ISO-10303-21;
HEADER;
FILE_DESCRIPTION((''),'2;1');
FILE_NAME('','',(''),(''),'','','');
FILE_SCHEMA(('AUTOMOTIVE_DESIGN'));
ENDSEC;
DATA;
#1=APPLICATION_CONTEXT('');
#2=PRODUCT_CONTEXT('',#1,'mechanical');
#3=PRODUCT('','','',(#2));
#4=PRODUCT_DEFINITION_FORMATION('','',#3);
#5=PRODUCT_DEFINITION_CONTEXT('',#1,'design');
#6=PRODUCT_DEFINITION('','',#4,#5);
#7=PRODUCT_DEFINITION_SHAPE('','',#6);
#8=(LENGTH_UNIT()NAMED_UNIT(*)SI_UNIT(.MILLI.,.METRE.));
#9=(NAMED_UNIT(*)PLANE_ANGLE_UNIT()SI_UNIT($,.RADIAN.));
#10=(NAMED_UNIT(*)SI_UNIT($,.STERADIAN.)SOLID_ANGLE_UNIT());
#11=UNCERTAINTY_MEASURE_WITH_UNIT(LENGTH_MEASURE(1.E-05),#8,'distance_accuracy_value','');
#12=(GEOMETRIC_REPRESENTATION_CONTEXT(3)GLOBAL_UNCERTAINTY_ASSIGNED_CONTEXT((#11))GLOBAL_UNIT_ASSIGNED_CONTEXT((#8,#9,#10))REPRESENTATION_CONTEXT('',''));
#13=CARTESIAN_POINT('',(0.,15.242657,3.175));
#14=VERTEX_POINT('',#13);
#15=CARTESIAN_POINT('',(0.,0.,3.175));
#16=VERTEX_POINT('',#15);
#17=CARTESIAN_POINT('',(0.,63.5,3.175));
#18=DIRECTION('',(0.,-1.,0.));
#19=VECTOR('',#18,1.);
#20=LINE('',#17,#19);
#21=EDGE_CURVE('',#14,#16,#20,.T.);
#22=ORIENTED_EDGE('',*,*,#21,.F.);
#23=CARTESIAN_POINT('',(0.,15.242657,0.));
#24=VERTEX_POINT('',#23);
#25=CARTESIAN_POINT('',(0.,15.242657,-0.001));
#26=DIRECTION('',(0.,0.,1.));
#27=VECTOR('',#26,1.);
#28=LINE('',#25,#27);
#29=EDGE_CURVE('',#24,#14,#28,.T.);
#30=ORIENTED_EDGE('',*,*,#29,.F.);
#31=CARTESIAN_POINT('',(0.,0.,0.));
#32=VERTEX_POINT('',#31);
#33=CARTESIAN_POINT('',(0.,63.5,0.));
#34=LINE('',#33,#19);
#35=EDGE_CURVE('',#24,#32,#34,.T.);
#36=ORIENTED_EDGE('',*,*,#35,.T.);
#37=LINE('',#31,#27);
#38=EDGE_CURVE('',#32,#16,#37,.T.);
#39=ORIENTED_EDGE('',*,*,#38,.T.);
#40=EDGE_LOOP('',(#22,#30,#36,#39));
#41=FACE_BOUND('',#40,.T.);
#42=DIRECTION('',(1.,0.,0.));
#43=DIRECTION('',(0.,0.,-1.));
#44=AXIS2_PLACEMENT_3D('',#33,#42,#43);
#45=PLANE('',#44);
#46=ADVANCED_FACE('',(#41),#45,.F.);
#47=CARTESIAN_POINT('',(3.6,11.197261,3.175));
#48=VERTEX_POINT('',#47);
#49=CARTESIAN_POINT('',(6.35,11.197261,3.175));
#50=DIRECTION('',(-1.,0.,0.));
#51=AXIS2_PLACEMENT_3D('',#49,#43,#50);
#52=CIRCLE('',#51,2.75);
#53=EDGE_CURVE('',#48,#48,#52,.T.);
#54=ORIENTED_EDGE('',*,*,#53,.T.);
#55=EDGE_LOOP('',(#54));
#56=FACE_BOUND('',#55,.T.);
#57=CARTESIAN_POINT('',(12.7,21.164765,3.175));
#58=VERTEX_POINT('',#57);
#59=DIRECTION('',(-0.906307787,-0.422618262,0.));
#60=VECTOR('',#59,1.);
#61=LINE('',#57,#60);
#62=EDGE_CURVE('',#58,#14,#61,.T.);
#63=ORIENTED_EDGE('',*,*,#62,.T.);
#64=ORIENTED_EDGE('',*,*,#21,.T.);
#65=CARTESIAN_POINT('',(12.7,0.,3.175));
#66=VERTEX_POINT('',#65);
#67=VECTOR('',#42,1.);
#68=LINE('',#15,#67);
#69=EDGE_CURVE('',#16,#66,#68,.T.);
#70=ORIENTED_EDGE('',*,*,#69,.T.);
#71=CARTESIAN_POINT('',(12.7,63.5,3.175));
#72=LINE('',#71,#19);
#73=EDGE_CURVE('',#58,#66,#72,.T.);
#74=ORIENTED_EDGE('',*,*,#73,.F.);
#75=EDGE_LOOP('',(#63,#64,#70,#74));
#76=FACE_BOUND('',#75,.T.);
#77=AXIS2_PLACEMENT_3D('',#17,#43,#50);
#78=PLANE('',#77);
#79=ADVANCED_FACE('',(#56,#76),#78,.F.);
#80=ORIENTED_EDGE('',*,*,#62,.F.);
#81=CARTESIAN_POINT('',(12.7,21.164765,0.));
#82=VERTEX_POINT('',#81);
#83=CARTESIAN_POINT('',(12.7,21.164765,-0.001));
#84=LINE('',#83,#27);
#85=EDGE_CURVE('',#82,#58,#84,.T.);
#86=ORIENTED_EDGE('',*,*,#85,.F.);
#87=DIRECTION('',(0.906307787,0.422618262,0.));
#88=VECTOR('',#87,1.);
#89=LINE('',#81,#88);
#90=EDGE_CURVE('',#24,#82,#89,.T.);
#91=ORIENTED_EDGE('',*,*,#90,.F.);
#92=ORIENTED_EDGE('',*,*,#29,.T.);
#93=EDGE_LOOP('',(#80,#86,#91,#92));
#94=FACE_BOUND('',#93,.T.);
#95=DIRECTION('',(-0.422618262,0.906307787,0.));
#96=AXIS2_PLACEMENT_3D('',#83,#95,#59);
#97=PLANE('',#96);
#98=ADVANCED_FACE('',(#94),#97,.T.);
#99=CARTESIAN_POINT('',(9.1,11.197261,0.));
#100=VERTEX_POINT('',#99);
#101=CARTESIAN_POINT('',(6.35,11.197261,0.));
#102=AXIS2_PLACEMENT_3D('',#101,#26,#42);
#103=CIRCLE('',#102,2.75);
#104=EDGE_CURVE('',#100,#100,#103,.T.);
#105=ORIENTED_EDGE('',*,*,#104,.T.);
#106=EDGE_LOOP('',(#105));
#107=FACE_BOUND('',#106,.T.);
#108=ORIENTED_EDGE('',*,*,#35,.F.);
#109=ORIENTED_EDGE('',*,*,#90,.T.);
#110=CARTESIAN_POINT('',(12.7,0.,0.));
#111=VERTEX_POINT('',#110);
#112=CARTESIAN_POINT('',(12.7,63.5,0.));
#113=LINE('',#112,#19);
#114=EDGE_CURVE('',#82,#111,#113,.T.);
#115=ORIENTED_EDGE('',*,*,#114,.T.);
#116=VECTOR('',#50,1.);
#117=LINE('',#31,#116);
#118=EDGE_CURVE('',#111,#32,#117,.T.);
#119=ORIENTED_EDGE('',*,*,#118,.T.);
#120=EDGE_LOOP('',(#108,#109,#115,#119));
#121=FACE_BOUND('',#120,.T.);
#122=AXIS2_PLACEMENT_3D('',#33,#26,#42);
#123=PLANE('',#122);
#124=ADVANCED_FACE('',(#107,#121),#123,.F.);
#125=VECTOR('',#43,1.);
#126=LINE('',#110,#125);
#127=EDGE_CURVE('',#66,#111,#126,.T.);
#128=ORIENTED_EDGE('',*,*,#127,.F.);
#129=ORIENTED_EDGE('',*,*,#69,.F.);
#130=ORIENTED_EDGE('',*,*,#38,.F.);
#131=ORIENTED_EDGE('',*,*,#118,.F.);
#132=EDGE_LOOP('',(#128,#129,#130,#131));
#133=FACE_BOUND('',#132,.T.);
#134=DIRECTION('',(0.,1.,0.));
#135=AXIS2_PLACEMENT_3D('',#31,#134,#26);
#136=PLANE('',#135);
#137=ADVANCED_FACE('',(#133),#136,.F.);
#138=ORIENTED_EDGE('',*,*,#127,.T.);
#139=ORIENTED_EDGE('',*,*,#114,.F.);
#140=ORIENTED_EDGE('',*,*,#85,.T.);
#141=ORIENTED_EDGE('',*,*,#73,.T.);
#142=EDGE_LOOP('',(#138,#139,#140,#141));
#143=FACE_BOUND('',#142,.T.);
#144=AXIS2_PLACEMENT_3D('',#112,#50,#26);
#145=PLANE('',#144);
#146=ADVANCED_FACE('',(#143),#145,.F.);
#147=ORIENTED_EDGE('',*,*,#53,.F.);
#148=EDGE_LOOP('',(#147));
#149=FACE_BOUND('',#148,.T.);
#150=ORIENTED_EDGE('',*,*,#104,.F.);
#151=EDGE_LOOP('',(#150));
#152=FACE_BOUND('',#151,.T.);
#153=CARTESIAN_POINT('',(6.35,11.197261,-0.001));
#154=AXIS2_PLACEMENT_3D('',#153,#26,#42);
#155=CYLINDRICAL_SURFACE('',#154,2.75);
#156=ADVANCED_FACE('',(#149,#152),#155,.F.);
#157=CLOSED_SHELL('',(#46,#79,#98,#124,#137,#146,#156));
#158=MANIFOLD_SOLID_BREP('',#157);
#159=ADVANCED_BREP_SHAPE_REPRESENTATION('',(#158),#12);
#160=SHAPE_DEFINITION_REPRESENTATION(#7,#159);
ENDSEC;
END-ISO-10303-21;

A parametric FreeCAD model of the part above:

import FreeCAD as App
import Part
import Sketcher
from FreeCAD import Vector
Q = App.Units.Quantity


def add_polygon(sketch, points):
    """Adds a closed chain of lines whose ends are joined by coincident constraints."""
    first, n = sketch.GeometryCount, len(points)
    for a, b in zip(points, points[1:] + points[:1]):
        sketch.addGeometry(Part.LineSegment(App.Vector(*a, 0), App.Vector(*b, 0)), False)
    for i in range(n):
        sketch.addConstraint(Sketcher.Constraint("Coincident", first + i, 2, first + (i + 1) % n, 1))

doc = App.newDocument("Part")
body = doc.addObject("PartDesign::Body", "Body")

sketch1 = doc.addObject("Sketcher::SketchObject", "Sketch")
body.addObject(sketch1)
sketch1.AttachmentSupport = (doc.XZ_Plane, [""])
sketch1.MapMode = "FlatFace"
add_polygon(sketch1, [(0, 0), (0, 3.2), (12.7, 3.2), (12.7, 0)])
sketch1.addConstraint([
    Sketcher.Constraint("Vertical", 0),
    Sketcher.Constraint("Horizontal", 1),
    Sketcher.Constraint("Vertical", 2),
    Sketcher.Constraint("Horizontal", 3),
    Sketcher.Constraint("Coincident", 3, 2, -1, 1),
    Sketcher.Constraint("DistanceX", 1, 1, 1, 2, Q("0.5 in")),
    Sketcher.Constraint("DistanceY", 0, 1, 0, 2, Q("0.125 in")),
])
pad1 = doc.addObject("PartDesign::Pad", "Pad")
body.addObject(pad1)
pad1.Profile = sketch1
pad1.Length = Q("2.5 in")
pad1.Reversed = True

sketch2 = doc.addObject("Sketcher::SketchObject", "Sketch001")
body.addObject(sketch2)
sketch2.AttachmentSupport = (doc.XY_Plane, [""])
sketch2.MapMode = "FlatFace"
sketch2.AttachmentOffset = App.Placement(Vector(0, 0, 0.125 * 25.4), App.Rotation())
sketch2.addGeometry(Part.Circle(Vector(6.3, 11.2, 0), Vector(0, 0, 1), 2.8), False)
sketch2.addConstraint([
    Sketcher.Constraint("Diameter", 0, Q("5.5 mm")),
    Sketcher.Constraint("DistanceX", -1, 1, 0, 3, Q("0.25 in")),
    Sketcher.Constraint("DistanceY", -1, 1, 0, 3, Q("11.197261 mm")),
])
pocket1 = doc.addObject("PartDesign::Pocket", "Pocket")
body.addObject(pocket1)
pocket1.Profile = sketch2
pocket1.Type = "UpToFirst"

sketch3 = doc.addObject("Sketcher::SketchObject", "Sketch002")
body.addObject(sketch3)
sketch3.AttachmentSupport = (doc.XY_Plane, [""])
sketch3.MapMode = "FlatFace"
sketch3.AttachmentOffset = App.Placement(Vector(0, 0, 0.125 * 25.4), App.Rotation())
add_polygon(sketch3, [(13, 21), (0, 15), (0, 64), (13, 64)])
sketch3.addConstraint([
    Sketcher.Constraint("Vertical", 1),
    Sketcher.Constraint("Horizontal", 2),
    Sketcher.Constraint("Vertical", 3),
    Sketcher.Constraint("PointOnObject", 0, 2, -2),
    Sketcher.Constraint("DistanceX", 2, 1, 2, 2, Q("0.5 in")),
    Sketcher.Constraint("Angle", 0, Q("-155 deg")),
    Sketcher.Constraint("DistanceY", -1, 1, 1, 2, Q("2.5 in")),
    Sketcher.Constraint("DistanceY", 1, 1, 1, 2, Q("48.257343 mm")),
])
pocket2 = doc.addObject("PartDesign::Pocket", "Pocket001")
body.addObject(pocket2)
pocket2.Profile = sketch3
pocket2.Type = "UpToFirst"

doc.recompute()
